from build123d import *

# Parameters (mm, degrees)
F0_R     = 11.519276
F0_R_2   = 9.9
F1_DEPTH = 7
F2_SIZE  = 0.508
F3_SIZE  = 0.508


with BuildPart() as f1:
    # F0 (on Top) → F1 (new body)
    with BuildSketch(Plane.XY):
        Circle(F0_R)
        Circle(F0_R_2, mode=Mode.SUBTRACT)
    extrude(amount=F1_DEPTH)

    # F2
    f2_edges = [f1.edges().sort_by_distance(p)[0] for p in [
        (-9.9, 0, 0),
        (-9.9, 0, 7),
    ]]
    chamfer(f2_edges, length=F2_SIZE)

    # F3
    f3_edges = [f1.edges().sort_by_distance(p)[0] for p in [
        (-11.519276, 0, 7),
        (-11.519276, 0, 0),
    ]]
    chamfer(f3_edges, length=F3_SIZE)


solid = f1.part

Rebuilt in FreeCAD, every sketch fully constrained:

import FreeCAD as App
import Part
import Sketcher

V = App.Vector
Q = App.Units.Quantity


def edges_at(feature, points):
    """Names of the edges that pass closest to the given points."""
    edges = feature.Shape.Edges
    near = lambda p: min(range(len(edges)), key=lambda i: edges[i].distToShape(Part.Vertex(*p))[0])
    return sorted({f"Edge{near(p) + 1}" for p in points})

doc = App.newDocument("Part")
body = doc.addObject("PartDesign::Body", "Body")

# Sketch on XY plane
sketch1 = body.newObject("Sketcher::SketchObject", "Sketch")
sketch1.AttachmentSupport = (doc.getObject("XY_Plane"), [""])
sketch1.MapMode = "FlatFace"
sketch1.addGeometry([
    Part.Circle(V(0, 0, 0), V(0, 0, 1), 12),
    Part.Circle(V(0, 0, 0), V(0, 0, 1), 10),
], False)
sketch1.addConstraint([
    Sketcher.Constraint("Coincident", 0, 3, -1, 1),
    Sketcher.Constraint("Coincident", 1, 3, -1, 1),
    Sketcher.Constraint("Diameter", 1, Q("19.8 mm")),
    Sketcher.Constraint("Diameter", 0, Q("23.038552 mm")),
])
pad1 = body.newObject("PartDesign::Pad", "Pad")
pad1.Profile = sketch1
pad1.Length = 7
doc.recompute()

chamfer = body.newObject("PartDesign::Chamfer", "Chamfer")
chamfer.Base = (pad1, edges_at(pad1, [(-9.9, 0, 0), (-9.9, 0, 7)]))
chamfer.Size = 0.508
doc.recompute()

chamfer2 = body.newObject("PartDesign::Chamfer", "Chamfer001")
chamfer2.Base = (chamfer, edges_at(chamfer, [(-11.519, 0, 7), (-11.519, 0, 0)]))
chamfer2.Size = 0.508

doc.recompute()
